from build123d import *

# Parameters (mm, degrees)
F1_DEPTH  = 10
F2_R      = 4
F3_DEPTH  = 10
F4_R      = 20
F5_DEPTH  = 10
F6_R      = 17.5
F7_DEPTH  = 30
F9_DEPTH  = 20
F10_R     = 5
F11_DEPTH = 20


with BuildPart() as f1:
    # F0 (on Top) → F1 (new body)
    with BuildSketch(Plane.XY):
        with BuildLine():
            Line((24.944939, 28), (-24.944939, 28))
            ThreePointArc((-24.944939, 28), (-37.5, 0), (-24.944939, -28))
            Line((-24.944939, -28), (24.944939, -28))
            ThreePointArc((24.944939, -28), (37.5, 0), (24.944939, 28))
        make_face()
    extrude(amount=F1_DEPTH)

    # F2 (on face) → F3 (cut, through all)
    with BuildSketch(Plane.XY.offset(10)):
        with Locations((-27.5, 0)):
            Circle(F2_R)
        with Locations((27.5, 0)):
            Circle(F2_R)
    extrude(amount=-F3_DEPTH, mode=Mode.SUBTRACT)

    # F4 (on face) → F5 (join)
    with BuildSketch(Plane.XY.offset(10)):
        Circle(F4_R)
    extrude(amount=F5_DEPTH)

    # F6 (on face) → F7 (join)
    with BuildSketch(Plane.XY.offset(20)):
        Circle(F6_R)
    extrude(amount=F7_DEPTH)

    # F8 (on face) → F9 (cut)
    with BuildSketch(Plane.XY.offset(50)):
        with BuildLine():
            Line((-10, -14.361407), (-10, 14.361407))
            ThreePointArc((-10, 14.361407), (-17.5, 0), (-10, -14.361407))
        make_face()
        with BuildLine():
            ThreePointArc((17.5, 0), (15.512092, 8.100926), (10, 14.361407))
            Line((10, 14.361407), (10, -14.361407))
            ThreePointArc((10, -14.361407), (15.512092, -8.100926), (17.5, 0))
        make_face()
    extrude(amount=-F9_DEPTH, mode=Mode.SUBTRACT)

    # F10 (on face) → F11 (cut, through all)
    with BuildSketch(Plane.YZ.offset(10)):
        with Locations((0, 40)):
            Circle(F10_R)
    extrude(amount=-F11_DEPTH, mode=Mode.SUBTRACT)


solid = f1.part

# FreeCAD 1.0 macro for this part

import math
import FreeCAD as App
import Part
import Sketcher
from FreeCAD import Vector
Q = App.Units.Quantity

doc = App.newDocument("Part")
body = doc.addObject("PartDesign::Body", "Body")

# Sketch on XY plane
sketch1 = doc.addObject("Sketcher::SketchObject", "Sketch")
body.addObject(sketch1)
sketch1.AttachmentSupport = (doc.XY_Plane, [""])
sketch1.MapMode = "FlatFace"
sketch1.addGeometry(Part.LineSegment(Vector(25, 28, 0), Vector(-25, 28, 0)), False)
sketch1.addGeometry(Part.ArcOfCircle(Part.Circle(Vector(0, 0, 0), Vector(0, 0, 1), 37), math.radians(132), math.radians(228)), False)
sketch1.addGeometry(Part.LineSegment(Vector(-25, -28, 0), Vector(25, -28, 0)), False)
sketch1.addGeometry(Part.ArcOfCircle(Part.Circle(Vector(0, 0, 0), Vector(0, 0, 1), 37), math.radians(-48), math.radians(48)), False)
sketch1.addConstraint(Sketcher.Constraint("Coincident", 0, 2, 1, 1))
sketch1.addConstraint(Sketcher.Constraint("Coincident", 1, 2, 2, 1))
sketch1.addConstraint(Sketcher.Constraint("Coincident", 2, 2, 3, 1))
sketch1.addConstraint(Sketcher.Constraint("Coincident", 3, 2, 0, 1))
sketch1.addConstraint(Sketcher.Constraint("Horizontal", 0))
sketch1.addConstraint(Sketcher.Constraint("Horizontal", 2))
sketch1.addConstraint(Sketcher.Constraint("Coincident", 1, 3, -1, 1))
sketch1.addConstraint(Sketcher.Constraint("Coincident", 3, 3, -1, 1))
sketch1.addConstraint(Sketcher.Constraint("Equal", 1, 3))
sketch1.addConstraint(Sketcher.Constraint("Vertical", 0, 2, 1, 2))
sketch1.addConstraint(Sketcher.Constraint("Radius", 1, Q("37.499999 mm")))
sketch1.addConstraint(Sketcher.Constraint("DistanceY", -1, 1, 0, 2, Q("28 mm")))
pad1 = doc.addObject("PartDesign::Pad", "Pad")
body.addObject(pad1)
pad1.Profile = sketch1
pad1.Length = 10

# Sketch on XY plane
sketch2 = doc.addObject("Sketcher::SketchObject", "Sketch001")
body.addObject(sketch2)
sketch2.AttachmentSupport = (doc.XY_Plane, [""])
sketch2.MapMode = "FlatFace"
sketch2.AttachmentOffset = App.Placement(Vector(0, 0, 10), App.Rotation())
sketch2.addGeometry(Part.Circle(Vector(-27.5, 0, 0), Vector(0, 0, 1), 4), False)
sketch2.addGeometry(Part.Circle(Vector(27.5, 0, 0), Vector(0, 0, 1), 4), False)
sketch2.addConstraint(Sketcher.Constraint("Equal", 0, 1))
sketch2.addConstraint(Sketcher.Constraint("Symmetric", 0, 3, 1, 3, -1, 1))
sketch2.addConstraint(Sketcher.Constraint("PointOnObject", 0, 3, -1))
sketch2.addConstraint(Sketcher.Constraint("Diameter", 0, Q("8 mm")))
sketch2.addConstraint(Sketcher.Constraint("DistanceX", 0, 3, 1, 3, Q("55 mm")))
pocket1 = doc.addObject("PartDesign::Pocket", "Pocket")
body.addObject(pocket1)
pocket1.Profile = sketch2
pocket1.Type = "ThroughAll"

# Sketch on XY plane
sketch3 = doc.addObject("Sketcher::SketchObject", "Sketch002")
body.addObject(sketch3)
sketch3.AttachmentSupport = (doc.XY_Plane, [""])
sketch3.MapMode = "FlatFace"
sketch3.AttachmentOffset = App.Placement(Vector(0, 0, 10), App.Rotation())
sketch3.addGeometry(Part.Circle(Vector(0, 0, 0), Vector(0, 0, 1), 20), False)
sketch3.addConstraint(Sketcher.Constraint("Coincident", 0, 3, -1, 1))
sketch3.addConstraint(Sketcher.Constraint("Diameter", 0, Q("40 mm")))
pad2 = doc.addObject("PartDesign::Pad", "Pad001")
body.addObject(pad2)
pad2.Profile = sketch3
pad2.Length = 10

# Sketch on XY plane
sketch4 = doc.addObject("Sketcher::SketchObject", "Sketch003")
body.addObject(sketch4)
sketch4.AttachmentSupport = (doc.XY_Plane, [""])
sketch4.MapMode = "FlatFace"
sketch4.AttachmentOffset = App.Placement(Vector(0, 0, 20), App.Rotation())
sketch4.addGeometry(Part.Circle(Vector(0, 0, 0), Vector(0, 0, 1), 18), False)
sketch4.addConstraint(Sketcher.Constraint("Coincident", 0, 3, -1, 1))
sketch4.addConstraint(Sketcher.Constraint("Diameter", 0, Q("35 mm")))
pad3 = doc.addObject("PartDesign::Pad", "Pad002")
body.addObject(pad3)
pad3.Profile = sketch4
pad3.Length = 30

# Sketch on XY plane
sketch5 = doc.addObject("Sketcher::SketchObject", "Sketch004")
body.addObject(sketch5)
sketch5.AttachmentSupport = (doc.XY_Plane, [""])
sketch5.MapMode = "FlatFace"
sketch5.AttachmentOffset = App.Placement(Vector(0, 0, 50), App.Rotation())
sketch5.addGeometry(Part.LineSegment(Vector(-10, -14, 0), Vector(-10, 14, 0)), False)
sketch5.addGeometry(Part.ArcOfCircle(Part.Circle(Vector(0, 0, 0), Vector(0, 0, 1), 18), math.radians(125), math.radians(235)), False)
sketch5.addGeometry(Part.ArcOfCircle(Part.Circle(Vector(0, 0, 0), Vector(0, 0, 1), 18), math.radians(0), math.radians(55)), False)
sketch5.addGeometry(Part.LineSegment(Vector(10, 14, 0), Vector(10, -14, 0)), False)
sketch5.addGeometry(Part.ArcOfCircle(Part.Circle(Vector(0, 0, 0), Vector(0, 0, 1), 18), math.radians(-55), math.radians(0)), False)
sketch5.addConstraint(Sketcher.Constraint("Coincident", 0, 1, 1, 2))
sketch5.addConstraint(Sketcher.Constraint("Coincident", 1, 1, 0, 2))
sketch5.addConstraint(Sketcher.Constraint("Coincident", 2, 2, 3, 1))
sketch5.addConstraint(Sketcher.Constraint("Coincident", 3, 2, 4, 1))
sketch5.addConstraint(Sketcher.Constraint("Tangent", 4, 2, 2, 1))
sketch5.addConstraint(Sketcher.Constraint("Vertical", 0))
sketch5.addConstraint(Sketcher.Constraint("Vertical", 3))
sketch5.addConstraint(Sketcher.Constraint("Coincident", 1, 3, -1, 1))
sketch5.addConstraint(Sketcher.Constraint("Coincident", 2, 3, -1, 1))
sketch5.addConstraint(Sketcher.Constraint("Equal", 1, 2))
sketch5.addConstraint(Sketcher.Constraint("Equal", 2, 4))
sketch5.addConstraint(Sketcher.Constraint("PointOnObject", 4, 2, -1))
sketch5.addConstraint(Sketcher.Constraint("Horizontal", 1, 1, 2, 2))
sketch5.addConstraint(Sketcher.Constraint("Radius", 1, Q("17.500001 mm")))
sketch5.addConstraint(Sketcher.Constraint("DistanceX", 0, 1, -1, 1, Q("10 mm")))
pocket2 = doc.addObject("PartDesign::Pocket", "Pocket001")
body.addObject(pocket2)
pocket2.Profile = sketch5
pocket2.Length = 20

# Sketch on YZ plane
sketch6 = doc.addObject("Sketcher::SketchObject", "Sketch005")
body.addObject(sketch6)
sketch6.AttachmentSupport = (doc.YZ_Plane, [""])
sketch6.MapMode = "FlatFace"
sketch6.AttachmentOffset = App.Placement(Vector(0, 0, 10), App.Rotation())
sketch6.addGeometry(Part.Circle(Vector(0, 40, 0), Vector(0, 0, 1), 5), False)
sketch6.addConstraint(Sketcher.Constraint("PointOnObject", 0, 3, -2))
sketch6.addConstraint(Sketcher.Constraint("Diameter", 0, Q("10 mm")))
sketch6.addConstraint(Sketcher.Constraint("DistanceY", -1, 1, 0, 3, Q("40 mm")))
pocket3 = doc.addObject("PartDesign::Pocket", "Pocket002")
body.addObject(pocket3)
pocket3.Profile = sketch6
pocket3.Type = "ThroughAll"

doc.recompute()
